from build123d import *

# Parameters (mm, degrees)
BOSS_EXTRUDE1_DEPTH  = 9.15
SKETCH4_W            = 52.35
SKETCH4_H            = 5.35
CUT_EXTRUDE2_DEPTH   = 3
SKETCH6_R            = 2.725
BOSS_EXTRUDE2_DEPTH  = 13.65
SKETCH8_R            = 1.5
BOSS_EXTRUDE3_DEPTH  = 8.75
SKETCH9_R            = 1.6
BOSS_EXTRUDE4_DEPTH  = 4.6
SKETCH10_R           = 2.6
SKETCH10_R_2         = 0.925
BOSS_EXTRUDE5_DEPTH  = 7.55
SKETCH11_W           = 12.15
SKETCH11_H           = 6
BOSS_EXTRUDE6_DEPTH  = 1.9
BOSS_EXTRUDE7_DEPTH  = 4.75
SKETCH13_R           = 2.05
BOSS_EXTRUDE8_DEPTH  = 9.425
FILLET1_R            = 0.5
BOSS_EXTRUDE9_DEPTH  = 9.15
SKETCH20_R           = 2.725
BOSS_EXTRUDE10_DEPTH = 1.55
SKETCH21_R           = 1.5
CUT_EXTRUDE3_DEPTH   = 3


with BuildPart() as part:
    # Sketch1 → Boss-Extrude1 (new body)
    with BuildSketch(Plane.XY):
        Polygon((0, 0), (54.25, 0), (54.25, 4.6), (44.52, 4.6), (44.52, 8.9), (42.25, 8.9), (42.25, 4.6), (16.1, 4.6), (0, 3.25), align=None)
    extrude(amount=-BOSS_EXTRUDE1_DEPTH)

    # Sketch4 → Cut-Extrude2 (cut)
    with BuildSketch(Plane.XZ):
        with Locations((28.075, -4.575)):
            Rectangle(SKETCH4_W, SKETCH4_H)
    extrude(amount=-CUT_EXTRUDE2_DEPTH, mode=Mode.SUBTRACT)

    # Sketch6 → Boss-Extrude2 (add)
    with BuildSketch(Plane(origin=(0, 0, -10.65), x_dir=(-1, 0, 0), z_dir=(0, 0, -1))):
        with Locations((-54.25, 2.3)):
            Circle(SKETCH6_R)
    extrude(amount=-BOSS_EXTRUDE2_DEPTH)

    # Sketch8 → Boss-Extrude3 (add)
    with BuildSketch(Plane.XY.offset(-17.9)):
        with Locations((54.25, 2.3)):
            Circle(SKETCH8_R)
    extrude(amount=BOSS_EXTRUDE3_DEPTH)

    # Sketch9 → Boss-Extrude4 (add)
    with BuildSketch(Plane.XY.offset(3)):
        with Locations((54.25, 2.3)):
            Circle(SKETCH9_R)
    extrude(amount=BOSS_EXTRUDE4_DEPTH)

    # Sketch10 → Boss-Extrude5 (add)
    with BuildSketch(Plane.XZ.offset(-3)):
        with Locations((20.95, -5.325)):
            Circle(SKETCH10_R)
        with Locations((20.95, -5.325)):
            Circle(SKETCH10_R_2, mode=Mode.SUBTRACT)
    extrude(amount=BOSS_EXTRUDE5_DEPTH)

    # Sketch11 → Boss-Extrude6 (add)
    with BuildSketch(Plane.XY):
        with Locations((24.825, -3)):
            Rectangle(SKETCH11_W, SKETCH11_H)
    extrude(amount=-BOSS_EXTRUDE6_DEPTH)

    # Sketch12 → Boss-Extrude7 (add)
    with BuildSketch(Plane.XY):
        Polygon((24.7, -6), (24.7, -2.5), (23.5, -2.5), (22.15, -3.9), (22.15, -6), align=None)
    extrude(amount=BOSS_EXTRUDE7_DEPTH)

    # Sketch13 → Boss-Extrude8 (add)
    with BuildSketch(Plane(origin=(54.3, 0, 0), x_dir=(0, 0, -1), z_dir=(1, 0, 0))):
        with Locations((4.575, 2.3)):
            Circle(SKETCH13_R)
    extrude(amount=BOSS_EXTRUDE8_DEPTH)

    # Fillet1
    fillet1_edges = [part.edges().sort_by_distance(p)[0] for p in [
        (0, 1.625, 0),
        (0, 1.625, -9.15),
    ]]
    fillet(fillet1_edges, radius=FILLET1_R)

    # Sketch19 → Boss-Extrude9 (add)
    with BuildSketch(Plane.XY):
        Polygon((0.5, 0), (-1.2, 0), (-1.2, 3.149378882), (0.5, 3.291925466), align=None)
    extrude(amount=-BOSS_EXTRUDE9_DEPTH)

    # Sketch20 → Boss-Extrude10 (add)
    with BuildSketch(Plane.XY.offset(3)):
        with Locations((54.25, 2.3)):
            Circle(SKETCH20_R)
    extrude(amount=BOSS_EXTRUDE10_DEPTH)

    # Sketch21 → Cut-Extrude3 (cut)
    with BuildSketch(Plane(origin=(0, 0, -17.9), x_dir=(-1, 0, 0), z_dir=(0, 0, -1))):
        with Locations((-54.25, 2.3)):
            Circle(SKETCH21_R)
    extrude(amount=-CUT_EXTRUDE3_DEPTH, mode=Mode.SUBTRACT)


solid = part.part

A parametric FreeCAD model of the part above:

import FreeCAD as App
import Part
import Sketcher
from FreeCAD import Vector
Q = App.Units.Quantity


def edges_at(feature, points):
    """Names of the edges that pass closest to the given points."""
    edges = feature.Shape.Edges
    near = lambda p: min(range(len(edges)), key=lambda i: edges[i].distToShape(Part.Vertex(*p))[0])
    return sorted({f"Edge{near(p) + 1}" for p in points})


def add_polygon(sketch, points):
    """Adds a closed chain of lines whose ends are joined by coincident constraints."""
    first, n = sketch.GeometryCount, len(points)
    for a, b in zip(points, points[1:] + points[:1]):
        sketch.addGeometry(Part.LineSegment(App.Vector(*a, 0), App.Vector(*b, 0)), False)
    for i in range(n):
        sketch.addConstraint(Sketcher.Constraint("Coincident", first + i, 2, first + (i + 1) % n, 1))

doc = App.newDocument("Part")
body = doc.addObject("PartDesign::Body", "Body")

sketch1 = body.newObject("Sketcher::SketchObject", "Sketch")
sketch1.AttachmentSupport = (doc.getObject("XY_Plane"), [""])
sketch1.MapMode = "FlatFace"
add_polygon(sketch1, [(0, 0), (54.25, 0), (54.25, 4.6), (44.52, 4.6), (44.52, 8.9), (42.25, 8.9), (42.25, 4.6), (16.1, 4.6), (0, 3.25)])
sketch1.addConstraint(Sketcher.Constraint("Horizontal", 0))
sketch1.addConstraint(Sketcher.Constraint("Vertical", 1))
sketch1.addConstraint(Sketcher.Constraint("Horizontal", 2))
sketch1.addConstraint(Sketcher.Constraint("Vertical", 3))
sketch1.addConstraint(Sketcher.Constraint("Horizontal", 4))
sketch1.addConstraint(Sketcher.Constraint("Vertical", 5))
sketch1.addConstraint(Sketcher.Constraint("Horizontal", 6))
sketch1.addConstraint(Sketcher.Constraint("Vertical", 8))
sketch1.addConstraint(Sketcher.Constraint("Coincident", 8, 2, -1, 1))
sketch1.addConstraint(Sketcher.Constraint("Horizontal", 2, 2, 5, 2))
sketch1.addConstraint(Sketcher.Constraint("DistanceY", 1, 1, 1, 2, Q("4.6 mm")))
sketch1.addConstraint(Sketcher.Constraint("DistanceY", 3, 1, 3, 2, Q("4.3 mm")))
sketch1.addConstraint(Sketcher.Constraint("DistanceX", 4, 2, 1, 2, Q("12 mm")))
sketch1.addConstraint(Sketcher.Constraint("DistanceX", 0, 1, 0, 2, Q("54.25 mm")))
sketch1.addConstraint(Sketcher.Constraint("DistanceX", 2, 2, 2, 1, Q("9.73 mm")))
sketch1.addConstraint(Sketcher.Constraint("DistanceX", 6, 2, 6, 1, Q("26.15 mm")))
sketch1.addConstraint(Sketcher.Constraint("DistanceY", 8, 2, 8, 1, Q("3.25 mm")))
pad1 = body.newObject("PartDesign::Pad", "Pad")
pad1.Profile = sketch1
pad1.Length = 9.15
pad1.Reversed = True

sketch2 = body.newObject("Sketcher::SketchObject", "Sketch001")
sketch2.AttachmentSupport = (doc.getObject("XZ_Plane"), [""])
sketch2.MapMode = "FlatFace"
add_polygon(sketch2, [(1.9, -1.9), (1.9, -7.25), (54.25, -7.25), (54.25, -1.9)])
sketch2.addConstraint(Sketcher.Constraint("Vertical", 0))
sketch2.addConstraint(Sketcher.Constraint("Horizontal", 1))
sketch2.addConstraint(Sketcher.Constraint("Vertical", 2))
sketch2.addConstraint(Sketcher.Constraint("Horizontal", 3))
sketch2.addConstraint(Sketcher.Constraint("DistanceX", 1, 1, 1, 2, Q("52.35 mm")))
sketch2.addConstraint(Sketcher.Constraint("DistanceY", 0, 2, 0, 1, Q("5.35 mm")))
sketch2.addConstraint(Sketcher.Constraint("DistanceX", -1, 1, 0, 2, Q("1.9 mm")))
sketch2.addConstraint(Sketcher.Constraint("DistanceY", 2, 2, -1, 1, Q("1.9 mm")))
pocket1 = body.newObject("PartDesign::Pocket", "Pocket")
pocket1.Profile = sketch2
pocket1.Length = 3

sketch3 = body.newObject("Sketcher::SketchObject", "Sketch002")
sketch3.AttachmentSupport = (doc.getObject("XY_Plane"), [""])
sketch3.MapMode = "FlatFace"
sketch3.AttachmentOffset = App.Placement(Vector(0, 0, -10.65), App.Rotation())
sketch3.addGeometry(Part.Circle(Vector(54.25, 2.3, 0), Vector(0, 0, 1), 2.725), False)
sketch3.addConstraint(Sketcher.Constraint("Diameter", 0, Q("5.45 mm")))
sketch3.addConstraint(Sketcher.Constraint("DistanceY", -1, 1, 0, 3, Q("2.3 mm")))
sketch3.addConstraint(Sketcher.Constraint("DistanceX", -1, 1, 0, 3, Q("54.25 mm")))
pad2 = body.newObject("PartDesign::Pad", "Pad001")
pad2.Profile = sketch3
pad2.Length = 13.65

sketch4 = body.newObject("Sketcher::SketchObject", "Sketch003")
sketch4.AttachmentSupport = (doc.getObject("XY_Plane"), [""])
sketch4.MapMode = "FlatFace"
sketch4.AttachmentOffset = App.Placement(Vector(0, 0, -17.9), App.Rotation())
sketch4.addGeometry(Part.Circle(Vector(54.25, 2.3, 0), Vector(0, 0, 1), 1.5), False)
sketch4.addConstraint(Sketcher.Constraint("Diameter", 0, Q("3 mm")))
sketch4.addConstraint(Sketcher.Constraint("DistanceY", -1, 1, 0, 3, Q("2.3 mm")))
sketch4.addConstraint(Sketcher.Constraint("DistanceX", -1, 1, 0, 3, Q("54.25 mm")))
pad3 = body.newObject("PartDesign::Pad", "Pad002")
pad3.Profile = sketch4
pad3.Length = 8.75

sketch5 = body.newObject("Sketcher::SketchObject", "Sketch004")
sketch5.AttachmentSupport = (doc.getObject("XY_Plane"), [""])
sketch5.MapMode = "FlatFace"
sketch5.AttachmentOffset = App.Placement(Vector(0, 0, 3), App.Rotation())
sketch5.addGeometry(Part.Circle(Vector(54.25, 2.3, 0), Vector(0, 0, 1), 1.6), False)
sketch5.addConstraint(Sketcher.Constraint("Diameter", 0, Q("3.2 mm")))
sketch5.addConstraint(Sketcher.Constraint("DistanceY", -1, 1, 0, 3, Q("2.3 mm")))
sketch5.addConstraint(Sketcher.Constraint("DistanceX", -1, 1, 0, 3, Q("54.25 mm")))
pad4 = body.newObject("PartDesign::Pad", "Pad003")
pad4.Profile = sketch5
pad4.Length = 4.6

sketch6 = body.newObject("Sketcher::SketchObject", "Sketch005")
sketch6.AttachmentSupport = (doc.getObject("XZ_Plane"), [""])
sketch6.MapMode = "FlatFace"
sketch6.AttachmentOffset = App.Placement(Vector(0, 0, -3), App.Rotation())
sketch6.addGeometry(Part.Circle(Vector(20.95, -5.325, 0), Vector(0, 0, 1), 2.6), False)
sketch6.addGeometry(Part.Circle(Vector(20.95, -5.325, 0), Vector(0, 0, 1), 0.925), False)
sketch6.addConstraint(Sketcher.Constraint("Coincident", 1, 3, 0, 3))
sketch6.addConstraint(Sketcher.Constraint("Diameter", 0, Q("5.2 mm")))
sketch6.addConstraint(Sketcher.Constraint("Diameter", 1, Q("1.85 mm")))
sketch6.addConstraint(Sketcher.Constraint("DistanceX", -1, 1, 0, 3, Q("20.95 mm")))
sketch6.addConstraint(Sketcher.Constraint("DistanceY", 0, 3, -1, 1, Q("5.325 mm")))
pad5 = body.newObject("PartDesign::Pad", "Pad004")
pad5.Profile = sketch6
pad5.Length = 7.55

sketch7 = body.newObject("Sketcher::SketchObject", "Sketch006")
sketch7.AttachmentSupport = (doc.getObject("XY_Plane"), [""])
sketch7.MapMode = "FlatFace"
add_polygon(sketch7, [(18.75, 0), (18.75, -6), (30.9, -6), (30.9, 0)])
sketch7.addConstraint(Sketcher.Constraint("Vertical", 0))
sketch7.addConstraint(Sketcher.Constraint("Horizontal", 1))
sketch7.addConstraint(Sketcher.Constraint("Vertical", 2))
sketch7.addConstraint(Sketcher.Constraint("Horizontal", 3))
sketch7.addConstraint(Sketcher.Constraint("PointOnObject", 2, 2, -1))
sketch7.addConstraint(Sketcher.Constraint("DistanceY", 0, 2, 0, 1, Q("6 mm")))
sketch7.addConstraint(Sketcher.Constraint("DistanceX", 1, 1, 1, 2, Q("12.15 mm")))
sketch7.addConstraint(Sketcher.Constraint("DistanceX", -1, 1, 1, 2, Q("30.9 mm")))
pad6 = body.newObject("PartDesign::Pad", "Pad005")
pad6.Profile = sketch7
pad6.Length = 1.9
pad6.Reversed = True

sketch8 = body.newObject("Sketcher::SketchObject", "Sketch007")
sketch8.AttachmentSupport = (doc.getObject("XY_Plane"), [""])
sketch8.MapMode = "FlatFace"
add_polygon(sketch8, [(24.7, -6), (24.7, -2.5), (23.5, -2.5), (22.15, -3.9), (22.15, -6)])
sketch8.addConstraint(Sketcher.Constraint("Vertical", 0))
sketch8.addConstraint(Sketcher.Constraint("Horizontal", 1))
sketch8.addConstraint(Sketcher.Constraint("Vertical", 3))
sketch8.addConstraint(Sketcher.Constraint("Horizontal", 4))
sketch8.addConstraint(Sketcher.Constraint("DistanceX", 1, 2, 1, 1, Q("1.2 mm")))
sketch8.addConstraint(Sketcher.Constraint("DistanceY", 0, 1, 0, 2, Q("3.5 mm")))
sketch8.addConstraint(Sketcher.Constraint("DistanceY", 3, 2, 3, 1, Q("2.1 mm")))
sketch8.addConstraint(Sketcher.Constraint("DistanceY", 3, 2, -1, 1, Q("6 mm")))
sketch8.addConstraint(Sketcher.Constraint("DistanceX", 4, 1, 4, 2, Q("2.55 mm")))
sketch8.addConstraint(Sketcher.Constraint("DistanceX", -1, 1, 0, 2, Q("24.7 mm")))
pad7 = body.newObject("PartDesign::Pad", "Pad006")
pad7.Profile = sketch8
pad7.Length = 4.75

sketch9 = body.newObject("Sketcher::SketchObject", "Sketch008")
sketch9.AttachmentSupport = (doc.getObject("YZ_Plane"), [""])
sketch9.MapMode = "FlatFace"
sketch9.AttachmentOffset = App.Placement(Vector(0, 0, 54.3), App.Rotation())
sketch9.addGeometry(Part.Circle(Vector(2.3, -4.575, 0), Vector(0, 0, 1), 2.05), False)
sketch9.addConstraint(Sketcher.Constraint("Diameter", 0, Q("4.1 mm")))
sketch9.addConstraint(Sketcher.Constraint("DistanceX", -1, 1, 0, 3, Q("2.3 mm")))
sketch9.addConstraint(Sketcher.Constraint("DistanceY", 0, 3, -1, 1, Q("4.575 mm")))
pad8 = body.newObject("PartDesign::Pad", "Pad007")
pad8.Profile = sketch9
pad8.Length = 9.425
doc.recompute()

fillet = body.newObject("PartDesign::Fillet", "Fillet")
fillet.Base = (pad8, edges_at(pad8, [(0, 1.625, 0), (0, 1.625, -9.15)]))
fillet.Radius = 0.5

sketch10 = body.newObject("Sketcher::SketchObject", "Sketch009")
sketch10.AttachmentSupport = (doc.getObject("XY_Plane"), [""])
sketch10.MapMode = "FlatFace"
add_polygon(sketch10, [(-1.2, 0), (0.5, 0), (0.5, 3.291925), (-1.2, 3.149379)])
sketch10.addConstraint(Sketcher.Constraint("Horizontal", 0))
sketch10.addConstraint(Sketcher.Constraint("Vertical", 1))
sketch10.addConstraint(Sketcher.Constraint("Vertical", 3))
sketch10.addConstraint(Sketcher.Constraint("PointOnObject", 0, 2, -1))
sketch10.addConstraint(Sketcher.Constraint("DistanceX", 0, 1, 0, 2, Q("1.7 mm")))
sketch10.addConstraint(Sketcher.Constraint("DistanceX", -1, 1, 0, 2, Q("0.5 mm")))
sketch10.addConstraint(Sketcher.Constraint("DistanceY", 3, 2, 3, 1, Q("3.149379 mm")))
sketch10.addConstraint(Sketcher.Constraint("DistanceY", 1, 1, 1, 2, Q("3.291925 mm")))
pad9 = body.newObject("PartDesign::Pad", "Pad008")
pad9.Profile = sketch10
pad9.Length = 9.15
pad9.Reversed = True

sketch11 = body.newObject("Sketcher::SketchObject", "Sketch010")
sketch11.AttachmentSupport = (doc.getObject("XY_Plane"), [""])
sketch11.MapMode = "FlatFace"
sketch11.AttachmentOffset = App.Placement(Vector(0, 0, 3), App.Rotation())
sketch11.addGeometry(Part.Circle(Vector(54.25, 2.3, 0), Vector(0, 0, 1), 2.725), False)
sketch11.addConstraint(Sketcher.Constraint("Diameter", 0, Q("5.45 mm")))
sketch11.addConstraint(Sketcher.Constraint("DistanceY", -1, 1, 0, 3, Q("2.3 mm")))
sketch11.addConstraint(Sketcher.Constraint("DistanceX", -1, 1, 0, 3, Q("54.25 mm")))
pad10 = body.newObject("PartDesign::Pad", "Pad009")
pad10.Profile = sketch11
pad10.Length = 1.55

sketch12 = body.newObject("Sketcher::SketchObject", "Sketch011")
sketch12.AttachmentSupport = (doc.getObject("XY_Plane"), [""])
sketch12.MapMode = "FlatFace"
sketch12.AttachmentOffset = App.Placement(Vector(0, 0, -17.9), App.Rotation())
sketch12.addGeometry(Part.Circle(Vector(54.25, 2.3, 0), Vector(0, 0, 1), 1.5), False)
sketch12.addConstraint(Sketcher.Constraint("Diameter", 0, Q("3 mm")))
sketch12.addConstraint(Sketcher.Constraint("DistanceY", -1, 1, 0, 3, Q("2.3 mm")))
sketch12.addConstraint(Sketcher.Constraint("DistanceX", -1, 1, 0, 3, Q("54.25 mm")))
pocket2 = body.newObject("PartDesign::Pocket", "Pocket001")
pocket2.Profile = sketch12
pocket2.Length = 3
pocket2.Reversed = True

doc.recompute()
